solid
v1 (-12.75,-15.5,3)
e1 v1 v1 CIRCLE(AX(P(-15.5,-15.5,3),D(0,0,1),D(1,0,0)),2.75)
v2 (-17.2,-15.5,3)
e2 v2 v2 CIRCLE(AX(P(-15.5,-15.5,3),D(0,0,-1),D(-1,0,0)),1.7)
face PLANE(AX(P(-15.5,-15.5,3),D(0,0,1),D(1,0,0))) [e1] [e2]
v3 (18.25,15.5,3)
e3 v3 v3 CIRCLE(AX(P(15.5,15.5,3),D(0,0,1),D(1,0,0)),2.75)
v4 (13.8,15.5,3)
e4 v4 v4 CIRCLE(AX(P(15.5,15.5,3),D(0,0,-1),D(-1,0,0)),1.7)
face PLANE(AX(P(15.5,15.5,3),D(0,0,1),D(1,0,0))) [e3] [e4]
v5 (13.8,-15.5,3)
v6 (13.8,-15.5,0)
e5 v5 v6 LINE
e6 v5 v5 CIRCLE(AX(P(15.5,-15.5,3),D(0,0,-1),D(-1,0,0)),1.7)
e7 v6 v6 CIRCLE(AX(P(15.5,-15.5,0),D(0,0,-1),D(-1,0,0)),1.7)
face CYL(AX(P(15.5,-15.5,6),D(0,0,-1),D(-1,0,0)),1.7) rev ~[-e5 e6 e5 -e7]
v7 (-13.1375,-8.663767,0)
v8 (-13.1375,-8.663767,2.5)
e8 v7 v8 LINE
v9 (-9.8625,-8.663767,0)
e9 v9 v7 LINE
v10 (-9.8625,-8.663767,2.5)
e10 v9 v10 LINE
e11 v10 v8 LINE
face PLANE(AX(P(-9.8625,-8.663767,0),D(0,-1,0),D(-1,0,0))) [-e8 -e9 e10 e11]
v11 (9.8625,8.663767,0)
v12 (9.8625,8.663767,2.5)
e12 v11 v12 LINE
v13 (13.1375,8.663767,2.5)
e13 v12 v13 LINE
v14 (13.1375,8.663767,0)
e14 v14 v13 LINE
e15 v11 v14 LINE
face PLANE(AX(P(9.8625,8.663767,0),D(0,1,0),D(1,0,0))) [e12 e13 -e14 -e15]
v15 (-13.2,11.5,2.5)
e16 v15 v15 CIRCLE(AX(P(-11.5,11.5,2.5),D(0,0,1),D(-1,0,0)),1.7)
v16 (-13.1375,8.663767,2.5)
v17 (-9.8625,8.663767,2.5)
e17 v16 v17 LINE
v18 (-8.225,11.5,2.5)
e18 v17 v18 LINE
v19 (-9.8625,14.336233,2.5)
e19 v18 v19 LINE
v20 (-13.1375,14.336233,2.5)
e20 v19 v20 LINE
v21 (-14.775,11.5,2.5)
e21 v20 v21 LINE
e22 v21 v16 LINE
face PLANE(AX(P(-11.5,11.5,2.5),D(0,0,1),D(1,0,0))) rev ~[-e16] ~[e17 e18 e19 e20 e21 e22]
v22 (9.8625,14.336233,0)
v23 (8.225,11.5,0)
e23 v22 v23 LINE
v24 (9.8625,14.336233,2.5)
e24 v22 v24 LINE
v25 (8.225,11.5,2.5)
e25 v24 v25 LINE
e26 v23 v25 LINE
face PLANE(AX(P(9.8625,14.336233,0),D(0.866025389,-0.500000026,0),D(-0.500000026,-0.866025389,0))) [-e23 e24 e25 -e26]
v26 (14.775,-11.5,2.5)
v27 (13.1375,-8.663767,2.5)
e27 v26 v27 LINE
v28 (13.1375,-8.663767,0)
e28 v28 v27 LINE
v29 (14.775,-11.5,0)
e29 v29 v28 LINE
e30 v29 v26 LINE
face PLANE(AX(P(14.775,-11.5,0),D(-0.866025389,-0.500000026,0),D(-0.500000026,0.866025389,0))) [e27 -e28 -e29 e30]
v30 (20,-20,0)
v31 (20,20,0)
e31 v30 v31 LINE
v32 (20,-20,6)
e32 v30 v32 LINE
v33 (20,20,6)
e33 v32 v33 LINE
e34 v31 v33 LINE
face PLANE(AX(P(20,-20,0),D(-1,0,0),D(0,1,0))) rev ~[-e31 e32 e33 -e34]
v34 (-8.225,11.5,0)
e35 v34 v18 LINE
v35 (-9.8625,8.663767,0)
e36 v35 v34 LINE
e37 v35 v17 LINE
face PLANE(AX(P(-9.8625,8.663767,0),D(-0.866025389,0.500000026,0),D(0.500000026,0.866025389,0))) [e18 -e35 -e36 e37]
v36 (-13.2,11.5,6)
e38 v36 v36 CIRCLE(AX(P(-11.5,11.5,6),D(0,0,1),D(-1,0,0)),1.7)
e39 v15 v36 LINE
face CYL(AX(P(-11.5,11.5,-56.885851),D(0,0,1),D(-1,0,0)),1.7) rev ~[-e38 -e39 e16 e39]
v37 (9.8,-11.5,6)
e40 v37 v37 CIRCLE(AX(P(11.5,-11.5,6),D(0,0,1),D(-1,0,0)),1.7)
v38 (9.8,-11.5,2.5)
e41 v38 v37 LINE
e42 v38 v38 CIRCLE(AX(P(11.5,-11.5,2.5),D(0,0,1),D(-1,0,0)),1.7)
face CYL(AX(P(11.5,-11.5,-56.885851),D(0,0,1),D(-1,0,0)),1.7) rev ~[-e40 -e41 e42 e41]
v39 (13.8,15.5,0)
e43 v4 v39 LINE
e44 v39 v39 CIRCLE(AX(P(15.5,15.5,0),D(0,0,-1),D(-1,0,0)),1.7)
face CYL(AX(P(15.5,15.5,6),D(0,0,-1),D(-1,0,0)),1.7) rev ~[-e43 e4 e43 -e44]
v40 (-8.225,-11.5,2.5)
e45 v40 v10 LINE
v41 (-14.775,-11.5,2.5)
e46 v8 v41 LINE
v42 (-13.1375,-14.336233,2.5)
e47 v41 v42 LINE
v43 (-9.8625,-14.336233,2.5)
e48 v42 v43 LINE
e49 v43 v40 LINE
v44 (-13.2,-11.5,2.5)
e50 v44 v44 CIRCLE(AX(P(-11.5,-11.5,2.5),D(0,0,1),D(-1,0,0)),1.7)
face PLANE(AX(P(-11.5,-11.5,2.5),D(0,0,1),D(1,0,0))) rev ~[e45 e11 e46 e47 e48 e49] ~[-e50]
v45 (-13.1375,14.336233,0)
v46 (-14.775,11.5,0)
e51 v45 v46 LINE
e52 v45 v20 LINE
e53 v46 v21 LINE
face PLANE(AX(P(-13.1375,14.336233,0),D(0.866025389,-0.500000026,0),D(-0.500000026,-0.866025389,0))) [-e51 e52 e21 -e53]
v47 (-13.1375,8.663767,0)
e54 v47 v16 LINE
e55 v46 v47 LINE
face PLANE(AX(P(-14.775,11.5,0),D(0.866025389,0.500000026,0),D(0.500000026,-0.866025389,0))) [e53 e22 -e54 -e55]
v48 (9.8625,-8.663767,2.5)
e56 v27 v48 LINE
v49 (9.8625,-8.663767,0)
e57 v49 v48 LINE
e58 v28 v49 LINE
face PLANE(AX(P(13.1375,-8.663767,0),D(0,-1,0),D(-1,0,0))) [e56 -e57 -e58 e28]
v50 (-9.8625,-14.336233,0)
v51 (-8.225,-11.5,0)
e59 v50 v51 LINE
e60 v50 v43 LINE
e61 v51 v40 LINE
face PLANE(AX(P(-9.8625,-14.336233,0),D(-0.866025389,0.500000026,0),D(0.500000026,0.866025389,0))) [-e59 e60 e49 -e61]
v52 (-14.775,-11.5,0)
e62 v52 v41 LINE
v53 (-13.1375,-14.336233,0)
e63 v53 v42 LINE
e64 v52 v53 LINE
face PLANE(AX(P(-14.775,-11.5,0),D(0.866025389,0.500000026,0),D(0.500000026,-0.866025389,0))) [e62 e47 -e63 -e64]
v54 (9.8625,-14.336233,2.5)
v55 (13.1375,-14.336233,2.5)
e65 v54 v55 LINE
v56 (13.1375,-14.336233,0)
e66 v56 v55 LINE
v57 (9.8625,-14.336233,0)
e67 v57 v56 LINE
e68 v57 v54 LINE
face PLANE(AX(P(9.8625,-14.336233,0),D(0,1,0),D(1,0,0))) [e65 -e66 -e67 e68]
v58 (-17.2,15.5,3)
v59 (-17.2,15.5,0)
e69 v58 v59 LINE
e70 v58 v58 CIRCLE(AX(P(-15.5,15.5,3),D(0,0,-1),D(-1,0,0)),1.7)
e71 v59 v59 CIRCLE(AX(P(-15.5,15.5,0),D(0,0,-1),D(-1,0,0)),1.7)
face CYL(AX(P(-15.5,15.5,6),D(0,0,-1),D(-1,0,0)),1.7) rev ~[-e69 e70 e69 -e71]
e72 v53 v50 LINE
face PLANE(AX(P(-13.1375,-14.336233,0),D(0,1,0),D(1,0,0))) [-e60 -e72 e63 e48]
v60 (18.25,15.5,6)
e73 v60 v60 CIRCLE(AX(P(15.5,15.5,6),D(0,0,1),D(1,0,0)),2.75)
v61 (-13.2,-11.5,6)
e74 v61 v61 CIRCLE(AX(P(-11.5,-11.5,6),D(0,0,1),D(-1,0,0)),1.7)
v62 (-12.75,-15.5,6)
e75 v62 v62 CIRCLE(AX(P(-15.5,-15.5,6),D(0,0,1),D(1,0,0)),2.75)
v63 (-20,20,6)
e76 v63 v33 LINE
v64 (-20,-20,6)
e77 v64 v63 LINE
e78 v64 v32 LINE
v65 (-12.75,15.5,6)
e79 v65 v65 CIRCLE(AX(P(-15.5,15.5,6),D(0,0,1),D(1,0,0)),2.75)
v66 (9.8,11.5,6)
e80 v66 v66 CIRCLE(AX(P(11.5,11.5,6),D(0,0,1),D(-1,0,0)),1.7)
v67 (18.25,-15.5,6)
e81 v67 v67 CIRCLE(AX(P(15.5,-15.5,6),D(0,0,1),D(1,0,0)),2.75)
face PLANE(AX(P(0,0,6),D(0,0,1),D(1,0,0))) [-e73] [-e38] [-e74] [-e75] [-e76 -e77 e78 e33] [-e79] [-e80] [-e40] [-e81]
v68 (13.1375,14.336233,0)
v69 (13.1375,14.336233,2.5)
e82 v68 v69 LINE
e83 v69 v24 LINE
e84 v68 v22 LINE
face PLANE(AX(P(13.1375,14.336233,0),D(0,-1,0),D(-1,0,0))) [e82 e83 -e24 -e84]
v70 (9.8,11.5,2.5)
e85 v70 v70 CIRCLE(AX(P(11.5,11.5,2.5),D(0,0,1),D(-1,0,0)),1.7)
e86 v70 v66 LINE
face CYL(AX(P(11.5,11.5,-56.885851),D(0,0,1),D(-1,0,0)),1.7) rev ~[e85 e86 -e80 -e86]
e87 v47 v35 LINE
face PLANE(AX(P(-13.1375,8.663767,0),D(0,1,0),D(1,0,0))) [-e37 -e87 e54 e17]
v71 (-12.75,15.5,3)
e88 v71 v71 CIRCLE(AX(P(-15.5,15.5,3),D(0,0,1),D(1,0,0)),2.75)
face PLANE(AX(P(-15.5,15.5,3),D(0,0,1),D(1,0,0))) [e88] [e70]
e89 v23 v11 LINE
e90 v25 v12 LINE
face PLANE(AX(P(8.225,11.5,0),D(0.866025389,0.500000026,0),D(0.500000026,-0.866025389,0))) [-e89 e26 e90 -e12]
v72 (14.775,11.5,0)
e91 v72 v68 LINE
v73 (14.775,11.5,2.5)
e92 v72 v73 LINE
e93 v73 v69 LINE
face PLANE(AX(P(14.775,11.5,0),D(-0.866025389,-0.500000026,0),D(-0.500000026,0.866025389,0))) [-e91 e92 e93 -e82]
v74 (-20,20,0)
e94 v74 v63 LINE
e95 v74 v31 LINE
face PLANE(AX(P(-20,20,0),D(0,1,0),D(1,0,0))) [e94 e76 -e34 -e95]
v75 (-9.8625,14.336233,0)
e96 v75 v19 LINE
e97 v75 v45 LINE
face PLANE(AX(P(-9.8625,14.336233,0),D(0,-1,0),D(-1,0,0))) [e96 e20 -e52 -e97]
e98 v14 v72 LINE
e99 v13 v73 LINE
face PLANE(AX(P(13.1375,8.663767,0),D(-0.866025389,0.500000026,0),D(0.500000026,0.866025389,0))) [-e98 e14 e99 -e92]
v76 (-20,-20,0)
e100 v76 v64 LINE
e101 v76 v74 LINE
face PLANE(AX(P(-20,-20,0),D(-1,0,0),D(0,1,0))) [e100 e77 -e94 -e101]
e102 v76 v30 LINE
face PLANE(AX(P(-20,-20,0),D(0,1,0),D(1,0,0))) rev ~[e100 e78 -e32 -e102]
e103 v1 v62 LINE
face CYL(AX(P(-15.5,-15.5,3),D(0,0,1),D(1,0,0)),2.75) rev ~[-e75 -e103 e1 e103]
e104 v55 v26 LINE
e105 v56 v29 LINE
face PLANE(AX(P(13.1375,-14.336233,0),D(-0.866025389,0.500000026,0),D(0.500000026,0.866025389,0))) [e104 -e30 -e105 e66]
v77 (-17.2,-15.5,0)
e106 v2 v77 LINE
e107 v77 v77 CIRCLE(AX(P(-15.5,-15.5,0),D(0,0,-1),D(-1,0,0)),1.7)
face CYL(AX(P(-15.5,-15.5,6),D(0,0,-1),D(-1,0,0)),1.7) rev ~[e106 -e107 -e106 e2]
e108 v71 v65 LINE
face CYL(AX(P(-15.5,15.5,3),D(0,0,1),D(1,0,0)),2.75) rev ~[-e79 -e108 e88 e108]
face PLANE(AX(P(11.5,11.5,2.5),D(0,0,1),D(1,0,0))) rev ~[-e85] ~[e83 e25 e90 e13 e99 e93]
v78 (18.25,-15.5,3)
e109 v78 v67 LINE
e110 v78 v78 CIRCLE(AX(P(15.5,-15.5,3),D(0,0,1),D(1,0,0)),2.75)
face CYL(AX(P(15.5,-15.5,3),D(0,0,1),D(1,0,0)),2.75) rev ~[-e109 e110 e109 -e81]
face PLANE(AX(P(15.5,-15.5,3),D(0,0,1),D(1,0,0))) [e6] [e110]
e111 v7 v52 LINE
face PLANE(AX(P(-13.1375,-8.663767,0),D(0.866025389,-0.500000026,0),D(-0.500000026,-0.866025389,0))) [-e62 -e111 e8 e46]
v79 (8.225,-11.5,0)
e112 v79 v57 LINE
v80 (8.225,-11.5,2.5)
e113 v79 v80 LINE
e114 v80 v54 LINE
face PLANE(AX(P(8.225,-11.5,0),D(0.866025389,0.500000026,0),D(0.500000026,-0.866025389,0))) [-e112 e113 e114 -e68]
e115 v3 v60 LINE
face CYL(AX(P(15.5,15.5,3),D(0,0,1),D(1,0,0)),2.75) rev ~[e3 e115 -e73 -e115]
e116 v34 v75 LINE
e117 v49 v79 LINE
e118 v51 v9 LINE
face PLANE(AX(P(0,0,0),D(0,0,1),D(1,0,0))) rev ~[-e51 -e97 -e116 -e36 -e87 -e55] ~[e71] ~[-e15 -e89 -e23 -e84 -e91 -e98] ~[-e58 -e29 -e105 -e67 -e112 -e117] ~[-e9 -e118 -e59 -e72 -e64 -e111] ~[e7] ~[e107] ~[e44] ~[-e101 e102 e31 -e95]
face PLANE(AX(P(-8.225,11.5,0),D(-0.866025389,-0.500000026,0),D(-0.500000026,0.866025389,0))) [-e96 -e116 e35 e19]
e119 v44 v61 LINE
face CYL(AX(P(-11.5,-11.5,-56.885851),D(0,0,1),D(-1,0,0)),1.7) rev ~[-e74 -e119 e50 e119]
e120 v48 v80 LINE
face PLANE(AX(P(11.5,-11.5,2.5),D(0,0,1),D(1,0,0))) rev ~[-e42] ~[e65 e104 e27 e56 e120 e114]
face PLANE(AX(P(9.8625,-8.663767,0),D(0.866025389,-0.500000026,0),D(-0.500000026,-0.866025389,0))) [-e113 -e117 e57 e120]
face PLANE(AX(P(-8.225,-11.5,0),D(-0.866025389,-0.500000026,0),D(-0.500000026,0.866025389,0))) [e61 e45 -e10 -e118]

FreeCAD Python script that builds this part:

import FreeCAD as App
import Part
import Sketcher
from FreeCAD import Vector
Q = App.Units.Quantity


def add_polygon(sketch, points):
    """Adds a closed chain of lines whose ends are joined by coincident constraints."""
    first, n = sketch.GeometryCount, len(points)
    for a, b in zip(points, points[1:] + points[:1]):
        sketch.addGeometry(Part.LineSegment(App.Vector(*a, 0), App.Vector(*b, 0)), False)
    for i in range(n):
        sketch.addConstraint(Sketcher.Constraint("Coincident", first + i, 2, first + (i + 1) % n, 1))

doc = App.newDocument("Part")
body = doc.addObject("PartDesign::Body", "Body")

sketch1 = body.newObject("Sketcher::SketchObject", "Sketch")
sketch1.AttachmentSupport = (doc.getObject("XY_Plane"), [""])
sketch1.MapMode = "FlatFace"
add_polygon(sketch1, [(-20, 20), (-20, -20), (20, -20), (20, 20)])
sketch1.addConstraint(Sketcher.Constraint("Vertical", 0))
sketch1.addConstraint(Sketcher.Constraint("Horizontal", 1))
sketch1.addConstraint(Sketcher.Constraint("Vertical", 2))
sketch1.addConstraint(Sketcher.Constraint("Horizontal", 3))
sketch1.addConstraint(Sketcher.Constraint("Symmetric", 0, 2, 2, 2, -1, 1))
sketch1.addConstraint(Sketcher.Constraint("Equal", 3, 0))
sketch1.addConstraint(Sketcher.Constraint("DistanceX", 1, 1, 1, 2, Q("40 mm")))
pad1 = body.newObject("PartDesign::Pad", "Pad")
pad1.Profile = sketch1
pad1.Length = 6

sketch2 = body.newObject("Sketcher::SketchObject", "Sketch001")
sketch2.AttachmentSupport = (doc.getObject("XY_Plane"), [""])
sketch2.MapMode = "FlatFace"
sketch2.AttachmentOffset = App.Placement(Vector(0, 0, 6), App.Rotation())
sketch2.addGeometry(Part.Circle(Vector(-15.5, 15.5, 0), Vector(0, 0, 1), 1.7), False)
sketch2.addGeometry(Part.Circle(Vector(15.5, 15.5, 0), Vector(0, 0, 1), 1.7), False)
sketch2.addGeometry(Part.Circle(Vector(15.5, -15.5, 0), Vector(0, 0, 1), 1.7), False)
sketch2.addGeometry(Part.Circle(Vector(-15.5, -15.5, 0), Vector(0, 0, 1), 1.7), False)
sketch2.addConstraint(Sketcher.Constraint("Equal", 0, 1))
sketch2.addConstraint(Sketcher.Constraint("Equal", 1, 2))
sketch2.addConstraint(Sketcher.Constraint("Equal", 2, 3))
sketch2.addConstraint(Sketcher.Constraint("Symmetric", 0, 3, 2, 3, -1, 1))
sketch2.addConstraint(Sketcher.Constraint("Symmetric", 1, 3, 3, 3, -1, 1))
sketch2.addConstraint(Sketcher.Constraint("Symmetric", 0, 3, 1, 3, -2))
sketch2.addConstraint(Sketcher.Constraint("Diameter", 0, Q("3.4 mm")))
sketch2.addConstraint(Sketcher.Constraint("DistanceX", 0, 3, 1, 3, Q("31 mm")))
sketch2.addConstraint(Sketcher.Constraint("DistanceY", 2, 3, 1, 3, Q("31 mm")))
doc.recompute()
hole = body.newObject("PartDesign::Hole", "Hole")
hole.Profile = sketch2
hole.ThreadType = "None"
hole.Diameter = 3.4
hole.DepthType = "ThroughAll"
hole.HoleCutType = "Counterbore"
hole.HoleCutDiameter = 5.5
hole.HoleCutDepth = 3

sketch3 = body.newObject("Sketcher::SketchObject", "Sketch002")
sketch3.AttachmentSupport = (doc.getObject("XY_Plane"), [""])
sketch3.MapMode = "FlatFace"
sketch3.addGeometry(Part.Circle(Vector(-11.5, 11.5, 0), Vector(0, 0, 1), 1.7), False)
sketch3.addGeometry(Part.Circle(Vector(11.5, 11.5, 0), Vector(0, 0, 1), 1.7), False)
sketch3.addGeometry(Part.Circle(Vector(11.5, -11.5, 0), Vector(0, 0, 1), 1.7), False)
sketch3.addGeometry(Part.Circle(Vector(-11.5, -11.5, 0), Vector(0, 0, 1), 1.7), False)
sketch3.addConstraint(Sketcher.Constraint("Equal", 0, 1))
sketch3.addConstraint(Sketcher.Constraint("Equal", 1, 2))
sketch3.addConstraint(Sketcher.Constraint("Equal", 2, 3))
sketch3.addConstraint(Sketcher.Constraint("Symmetric", 0, 3, 2, 3, -1, 1))
sketch3.addConstraint(Sketcher.Constraint("Symmetric", 1, 3, 3, 3, -1, 1))
sketch3.addConstraint(Sketcher.Constraint("Symmetric", 0, 3, 1, 3, -2))
sketch3.addConstraint(Sketcher.Constraint("Diameter", 0, Q("3.4 mm")))
sketch3.addConstraint(Sketcher.Constraint("DistanceX", 0, 3, 1, 3, Q("23 mm")))
sketch3.addConstraint(Sketcher.Constraint("DistanceY", 2, 3, 1, 3, Q("23 mm")))
doc.recompute()
hole2 = body.newObject("PartDesign::Hole", "Hole001")
hole2.Profile = sketch3
hole2.ThreadType = "None"
hole2.Diameter = 3.4
hole2.DepthType = "ThroughAll"
hole2.Reversed = True

sketch4 = body.newObject("Sketcher::SketchObject", "Sketch003")
sketch4.AttachmentSupport = (doc.getObject("XY_Plane"), [""])
sketch4.MapMode = "FlatFace"
add_polygon(sketch4, [(-9.8625, 8.663767), (-8.225, 11.5), (-9.8625, 14.336233), (-13.1375, 14.336233), (-14.775, 11.5), (-13.1375, 8.663767)])
add_polygon(sketch4, [(-9.8625, -14.336233), (-8.225, -11.5), (-9.8625, -8.663767), (-13.1375, -8.663767), (-14.775, -11.5), (-13.1375, -14.336233)])
add_polygon(sketch4, [(8.225, -11.5), (9.8625, -14.336233), (13.1375, -14.336233), (14.775, -11.5), (13.1375, -8.663767), (9.8625, -8.663767)])
add_polygon(sketch4, [(8.225, 11.5), (9.8625, 8.663767), (13.1375, 8.663767), (14.775, 11.5), (13.1375, 14.336233), (9.8625, 14.336233)])
sketch4.addConstraint(Sketcher.Constraint("Horizontal", 2))
sketch4.addConstraint(Sketcher.Constraint("Horizontal", 5))
sketch4.addConstraint(Sketcher.Constraint("Horizontal", 8))
sketch4.addConstraint(Sketcher.Constraint("Horizontal", 11))
sketch4.addConstraint(Sketcher.Constraint("Horizontal", 13))
sketch4.addConstraint(Sketcher.Constraint("Horizontal", 16))
sketch4.addConstraint(Sketcher.Constraint("Horizontal", 19))
sketch4.addConstraint(Sketcher.Constraint("Horizontal", 22))
sketch4.addConstraint(Sketcher.Constraint("Symmetric", 1, 2, 12, 2, -1, 1))
sketch4.addConstraint(Sketcher.Constraint("Symmetric", 3, 2, 14, 2, -1, 1))
sketch4.addConstraint(Sketcher.Constraint("Symmetric", 4, 2, 15, 2, -1, 1))
sketch4.addConstraint(Sketcher.Constraint("Symmetric", 0, 2, 17, 2, -1, 1))
sketch4.addConstraint(Sketcher.Constraint("Symmetric", 7, 2, 18, 2, -1, 1))
sketch4.addConstraint(Sketcher.Constraint("Symmetric", 9, 2, 20, 2, -1, 1))
sketch4.addConstraint(Sketcher.Constraint("Symmetric", 10, 2, 21, 2, -1, 1))
sketch4.addConstraint(Sketcher.Constraint("Symmetric", 6, 2, 23, 2, -1, 1))
sketch4.addConstraint(Sketcher.Constraint("Symmetric", 11, 2, 12, 2, -2))
sketch4.addConstraint(Sketcher.Constraint("Symmetric", 9, 2, 14, 2, -2))
sketch4.addConstraint(Sketcher.Constraint("Symmetric", 8, 2, 15, 2, -2))
sketch4.addConstraint(Sketcher.Constraint("Symmetric", 6, 2, 17, 2, -2))
sketch4.addConstraint(Sketcher.Constraint("Parallel", 0, 3))
sketch4.addConstraint(Sketcher.Constraint("Parallel", 1, 4))
sketch4.addConstraint(Sketcher.Constraint("Parallel", 3, 6))
sketch4.addConstraint(Sketcher.Constraint("Parallel", 4, 7))
sketch4.addConstraint(Sketcher.Constraint("Parallel", 7, 10))
sketch4.addConstraint(Sketcher.Constraint("Parallel", 9, 14))
sketch4.addConstraint(Sketcher.Constraint("Parallel", 14, 17))
sketch4.addConstraint(Sketcher.Constraint("Parallel", 17, 20))
sketch4.addConstraint(Sketcher.Constraint("Parallel", 20, 23))
sketch4.addConstraint(Sketcher.Constraint("Horizontal", 0, 2, 3, 2))
sketch4.addConstraint(Sketcher.Constraint("Vertical", 2, 2, 4, 2))
sketch4.addConstraint(Sketcher.Constraint("Angle", 0, Q("59.999998 deg")))
sketch4.addConstraint(Sketcher.Constraint("DistanceY", 6, 2, 0, 2, Q("23 mm")))
sketch4.addConstraint(Sketcher.Constraint("DistanceX", 10, 2, 12, 2, Q("23 mm")))
sketch4.addConstraint(Sketcher.Constraint("DistanceX", 2, 2, 2, 1, Q("3.275 mm")))
sketch4.addConstraint(Sketcher.Constraint("DistanceX", 3, 2, 0, 2, Q("6.55 mm")))
pocket1 = body.newObject("PartDesign::Pocket", "Pocket")
pocket1.Profile = sketch4
pocket1.Length = 2.5
pocket1.Reversed = True

doc.recompute()
